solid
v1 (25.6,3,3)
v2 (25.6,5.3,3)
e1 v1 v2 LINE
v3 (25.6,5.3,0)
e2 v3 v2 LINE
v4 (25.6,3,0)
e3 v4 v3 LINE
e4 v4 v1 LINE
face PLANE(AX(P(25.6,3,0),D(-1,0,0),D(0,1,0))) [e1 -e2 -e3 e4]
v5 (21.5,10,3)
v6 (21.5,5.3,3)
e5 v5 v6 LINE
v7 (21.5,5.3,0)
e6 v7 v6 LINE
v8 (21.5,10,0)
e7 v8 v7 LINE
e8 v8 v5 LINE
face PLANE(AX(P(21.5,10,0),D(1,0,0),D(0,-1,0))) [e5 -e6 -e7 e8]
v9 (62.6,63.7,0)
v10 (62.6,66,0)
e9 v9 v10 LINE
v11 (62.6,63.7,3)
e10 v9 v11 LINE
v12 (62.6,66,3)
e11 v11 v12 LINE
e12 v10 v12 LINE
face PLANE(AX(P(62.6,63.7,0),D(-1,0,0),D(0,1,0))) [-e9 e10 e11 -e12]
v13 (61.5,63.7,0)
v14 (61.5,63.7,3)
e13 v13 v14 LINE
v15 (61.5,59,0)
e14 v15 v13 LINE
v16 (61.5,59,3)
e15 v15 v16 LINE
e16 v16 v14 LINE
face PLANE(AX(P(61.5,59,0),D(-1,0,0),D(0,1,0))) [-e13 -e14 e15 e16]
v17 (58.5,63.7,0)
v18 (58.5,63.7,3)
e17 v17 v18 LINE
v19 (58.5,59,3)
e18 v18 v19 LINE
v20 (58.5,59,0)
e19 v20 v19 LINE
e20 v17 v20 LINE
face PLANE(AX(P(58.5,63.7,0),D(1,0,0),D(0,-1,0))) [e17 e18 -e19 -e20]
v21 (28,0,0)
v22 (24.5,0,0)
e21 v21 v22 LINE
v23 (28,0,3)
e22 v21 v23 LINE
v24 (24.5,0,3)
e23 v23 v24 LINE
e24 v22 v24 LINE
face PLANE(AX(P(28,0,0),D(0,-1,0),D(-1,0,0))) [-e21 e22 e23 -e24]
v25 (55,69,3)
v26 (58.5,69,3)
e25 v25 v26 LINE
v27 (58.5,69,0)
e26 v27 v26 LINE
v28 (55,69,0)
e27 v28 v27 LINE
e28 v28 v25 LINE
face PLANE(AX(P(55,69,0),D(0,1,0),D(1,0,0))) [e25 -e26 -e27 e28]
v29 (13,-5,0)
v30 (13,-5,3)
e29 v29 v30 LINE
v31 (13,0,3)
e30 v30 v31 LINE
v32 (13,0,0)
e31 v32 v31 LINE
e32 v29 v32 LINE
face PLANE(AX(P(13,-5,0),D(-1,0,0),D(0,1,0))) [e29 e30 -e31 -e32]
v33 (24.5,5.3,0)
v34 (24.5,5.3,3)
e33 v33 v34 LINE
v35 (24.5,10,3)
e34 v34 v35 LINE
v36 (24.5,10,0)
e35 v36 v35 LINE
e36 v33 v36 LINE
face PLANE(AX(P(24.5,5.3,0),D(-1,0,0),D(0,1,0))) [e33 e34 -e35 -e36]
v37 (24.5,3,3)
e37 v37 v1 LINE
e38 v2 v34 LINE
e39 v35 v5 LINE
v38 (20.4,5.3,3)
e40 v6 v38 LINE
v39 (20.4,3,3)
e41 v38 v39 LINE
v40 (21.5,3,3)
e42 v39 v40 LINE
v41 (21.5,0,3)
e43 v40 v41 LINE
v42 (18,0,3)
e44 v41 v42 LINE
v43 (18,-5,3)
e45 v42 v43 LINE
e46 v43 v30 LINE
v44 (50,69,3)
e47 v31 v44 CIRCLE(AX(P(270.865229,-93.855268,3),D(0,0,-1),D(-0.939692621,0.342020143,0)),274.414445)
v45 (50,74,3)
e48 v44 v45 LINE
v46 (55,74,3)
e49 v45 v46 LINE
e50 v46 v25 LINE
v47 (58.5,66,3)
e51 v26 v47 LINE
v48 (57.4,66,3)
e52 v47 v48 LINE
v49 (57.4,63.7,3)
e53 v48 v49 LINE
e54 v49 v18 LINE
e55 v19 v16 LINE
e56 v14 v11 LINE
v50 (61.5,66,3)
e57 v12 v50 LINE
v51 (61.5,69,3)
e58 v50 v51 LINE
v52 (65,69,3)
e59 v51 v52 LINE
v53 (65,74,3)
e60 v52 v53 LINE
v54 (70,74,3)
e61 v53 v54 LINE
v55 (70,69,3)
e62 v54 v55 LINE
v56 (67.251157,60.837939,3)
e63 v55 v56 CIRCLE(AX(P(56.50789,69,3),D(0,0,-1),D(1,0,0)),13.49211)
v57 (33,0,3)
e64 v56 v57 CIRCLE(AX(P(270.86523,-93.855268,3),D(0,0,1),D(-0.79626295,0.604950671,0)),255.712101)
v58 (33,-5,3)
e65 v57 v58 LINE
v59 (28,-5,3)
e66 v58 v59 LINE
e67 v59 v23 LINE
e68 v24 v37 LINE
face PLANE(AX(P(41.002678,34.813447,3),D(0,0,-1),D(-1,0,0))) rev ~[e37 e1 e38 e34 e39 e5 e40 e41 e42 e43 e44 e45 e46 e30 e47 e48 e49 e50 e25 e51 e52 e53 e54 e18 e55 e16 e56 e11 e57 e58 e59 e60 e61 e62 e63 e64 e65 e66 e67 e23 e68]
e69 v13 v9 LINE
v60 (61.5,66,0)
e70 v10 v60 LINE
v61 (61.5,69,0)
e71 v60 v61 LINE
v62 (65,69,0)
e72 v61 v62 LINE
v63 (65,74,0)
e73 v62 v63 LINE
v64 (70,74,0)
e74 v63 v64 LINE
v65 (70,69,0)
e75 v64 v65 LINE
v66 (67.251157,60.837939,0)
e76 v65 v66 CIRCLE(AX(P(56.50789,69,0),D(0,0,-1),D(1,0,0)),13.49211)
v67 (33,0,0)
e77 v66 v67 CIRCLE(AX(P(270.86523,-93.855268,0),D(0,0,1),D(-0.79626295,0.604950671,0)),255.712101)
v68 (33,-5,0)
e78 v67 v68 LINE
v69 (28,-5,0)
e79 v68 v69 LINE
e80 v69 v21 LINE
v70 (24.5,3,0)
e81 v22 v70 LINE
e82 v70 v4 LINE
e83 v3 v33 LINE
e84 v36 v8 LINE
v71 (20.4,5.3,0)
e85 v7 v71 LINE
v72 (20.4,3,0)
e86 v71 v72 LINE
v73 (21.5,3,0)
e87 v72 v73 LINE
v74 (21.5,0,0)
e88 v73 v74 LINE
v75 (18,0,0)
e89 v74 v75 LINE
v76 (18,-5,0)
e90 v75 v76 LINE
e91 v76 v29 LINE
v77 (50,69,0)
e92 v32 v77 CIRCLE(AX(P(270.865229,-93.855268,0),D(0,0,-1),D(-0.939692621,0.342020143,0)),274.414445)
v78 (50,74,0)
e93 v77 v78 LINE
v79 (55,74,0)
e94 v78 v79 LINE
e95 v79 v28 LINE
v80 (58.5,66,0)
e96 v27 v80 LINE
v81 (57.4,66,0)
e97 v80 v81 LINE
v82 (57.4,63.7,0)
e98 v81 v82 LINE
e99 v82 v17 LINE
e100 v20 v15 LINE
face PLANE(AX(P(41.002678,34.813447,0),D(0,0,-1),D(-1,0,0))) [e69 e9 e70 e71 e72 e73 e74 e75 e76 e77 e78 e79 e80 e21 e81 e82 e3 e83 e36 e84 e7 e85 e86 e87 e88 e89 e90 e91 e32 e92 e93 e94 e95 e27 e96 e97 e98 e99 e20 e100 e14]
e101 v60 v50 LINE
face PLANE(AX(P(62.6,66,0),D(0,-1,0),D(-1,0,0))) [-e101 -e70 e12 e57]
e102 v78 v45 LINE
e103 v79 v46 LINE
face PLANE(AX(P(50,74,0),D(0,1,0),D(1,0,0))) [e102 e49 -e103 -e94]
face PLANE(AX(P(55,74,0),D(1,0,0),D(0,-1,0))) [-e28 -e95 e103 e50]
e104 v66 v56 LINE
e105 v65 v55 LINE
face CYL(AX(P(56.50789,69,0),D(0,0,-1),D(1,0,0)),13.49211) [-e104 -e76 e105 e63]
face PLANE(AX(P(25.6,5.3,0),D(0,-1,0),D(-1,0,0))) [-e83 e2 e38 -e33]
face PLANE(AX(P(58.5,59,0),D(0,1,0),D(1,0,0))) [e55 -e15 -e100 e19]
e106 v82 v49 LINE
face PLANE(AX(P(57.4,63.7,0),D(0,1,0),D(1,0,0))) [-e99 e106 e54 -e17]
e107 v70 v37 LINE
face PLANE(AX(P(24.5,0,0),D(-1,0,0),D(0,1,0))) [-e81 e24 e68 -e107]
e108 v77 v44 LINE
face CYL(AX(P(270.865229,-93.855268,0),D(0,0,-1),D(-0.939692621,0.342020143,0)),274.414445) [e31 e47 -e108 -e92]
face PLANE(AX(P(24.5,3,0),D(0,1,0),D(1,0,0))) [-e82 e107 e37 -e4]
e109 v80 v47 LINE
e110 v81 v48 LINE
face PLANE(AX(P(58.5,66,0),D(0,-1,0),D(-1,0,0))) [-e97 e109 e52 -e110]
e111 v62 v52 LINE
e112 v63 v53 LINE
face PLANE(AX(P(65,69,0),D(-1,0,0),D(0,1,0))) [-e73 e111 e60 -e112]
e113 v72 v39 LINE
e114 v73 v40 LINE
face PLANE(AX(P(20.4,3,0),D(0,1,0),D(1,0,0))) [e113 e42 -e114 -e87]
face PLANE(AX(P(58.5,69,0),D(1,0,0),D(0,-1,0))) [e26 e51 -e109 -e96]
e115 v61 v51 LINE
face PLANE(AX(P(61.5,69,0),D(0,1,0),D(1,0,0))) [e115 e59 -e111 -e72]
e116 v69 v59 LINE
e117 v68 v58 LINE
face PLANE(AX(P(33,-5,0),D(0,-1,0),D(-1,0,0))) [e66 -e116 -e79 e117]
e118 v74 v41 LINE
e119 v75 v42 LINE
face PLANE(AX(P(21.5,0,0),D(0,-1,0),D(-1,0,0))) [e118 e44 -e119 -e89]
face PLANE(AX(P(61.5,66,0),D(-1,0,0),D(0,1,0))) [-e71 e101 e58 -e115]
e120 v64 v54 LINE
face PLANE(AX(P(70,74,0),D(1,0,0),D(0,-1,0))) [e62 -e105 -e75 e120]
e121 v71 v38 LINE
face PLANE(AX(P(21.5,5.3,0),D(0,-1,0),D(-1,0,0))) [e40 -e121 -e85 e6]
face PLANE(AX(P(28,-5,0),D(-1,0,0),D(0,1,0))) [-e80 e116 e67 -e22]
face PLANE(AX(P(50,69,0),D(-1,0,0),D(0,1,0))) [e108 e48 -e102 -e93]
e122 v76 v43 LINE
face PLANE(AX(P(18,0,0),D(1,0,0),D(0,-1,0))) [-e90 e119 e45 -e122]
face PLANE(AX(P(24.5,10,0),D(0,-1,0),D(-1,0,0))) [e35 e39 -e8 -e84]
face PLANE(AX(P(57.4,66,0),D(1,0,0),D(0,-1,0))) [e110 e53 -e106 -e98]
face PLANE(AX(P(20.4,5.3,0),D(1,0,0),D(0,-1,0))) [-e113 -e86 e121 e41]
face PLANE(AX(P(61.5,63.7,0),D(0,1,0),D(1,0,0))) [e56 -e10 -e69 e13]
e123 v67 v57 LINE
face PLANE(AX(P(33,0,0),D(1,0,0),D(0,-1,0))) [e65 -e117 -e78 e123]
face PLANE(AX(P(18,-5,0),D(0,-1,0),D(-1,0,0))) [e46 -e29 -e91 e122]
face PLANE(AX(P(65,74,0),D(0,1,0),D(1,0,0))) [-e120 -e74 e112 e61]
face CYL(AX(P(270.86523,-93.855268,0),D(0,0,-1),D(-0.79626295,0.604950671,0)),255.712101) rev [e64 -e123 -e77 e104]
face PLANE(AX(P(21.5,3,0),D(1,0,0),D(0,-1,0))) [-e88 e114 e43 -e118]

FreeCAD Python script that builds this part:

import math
import FreeCAD as App
import Part
import Sketcher
from FreeCAD import Vector

doc = App.newDocument("Part")
params = doc.addObject("Spreadsheet::Sheet", "Params")
for row, (alias, value) in enumerate([
    ("sketch1_width", "3 mm"),
    ("sketch1_width2", "5 mm"),
    ("sketch1_width3", "3.5 mm"),
    ("sketch1_width4", "1.1 mm"),
    ("sketch1_height", "2.3 mm"),
    ("pad1_length", "3 mm"),
], start=1):
    params.set(f"A{row}", alias)
    params.set(f"B{row}", "=" + value)
    params.setAlias(f"B{row}", alias)

body = doc.addObject("PartDesign::Body", "Body")

# Sketch on XY plane
sketch1 = doc.addObject("Sketcher::SketchObject", "Sketch")
body.addObject(sketch1)
sketch1.AttachmentSupport = (doc.XY_Plane, [""])
sketch1.MapMode = "FlatFace"
sketch1.addGeometry([
    Part.LineSegment(Vector(65, 69, 0), Vector(61.5, 69, 0)),  # 0
    Part.LineSegment(Vector(61.5, 69, 0), Vector(61.5, 66, 0)),  # 1
    Part.LineSegment(Vector(61.5, 66, 0), Vector(62.6, 66, 0)),  # 2
    Part.LineSegment(Vector(62.6, 66, 0), Vector(62.6, 63.7, 0)),  # 3
    Part.LineSegment(Vector(62.6, 63.7, 0), Vector(61.5, 63.7, 0)),  # 4
    Part.LineSegment(Vector(61.5, 63.7, 0), Vector(61.5, 59, 0)),  # 5
    Part.LineSegment(Vector(61.5, 59, 0), Vector(58.5, 59, 0)),  # 6
    Part.LineSegment(Vector(58.5, 59, 0), Vector(58.5, 63.7, 0)),  # 7
    Part.LineSegment(Vector(58.5, 63.7, 0), Vector(57.4, 63.7, 0)),  # 8
    Part.LineSegment(Vector(57.4, 63.7, 0), Vector(57.4, 66, 0)),  # 9
    Part.LineSegment(Vector(57.4, 66, 0), Vector(58.5, 66, 0)),  # 10
    Part.LineSegment(Vector(58.5, 66, 0), Vector(58.5, 69, 0)),  # 11
    Part.LineSegment(Vector(58.5, 69, 0), Vector(55, 69, 0)),  # 12
    Part.LineSegment(Vector(55, 69, 0), Vector(55, 74, 0)),  # 13
    Part.LineSegment(Vector(55, 74, 0), Vector(50, 74, 0)),  # 14
    Part.LineSegment(Vector(50, 74, 0), Vector(50, 69, 0)),  # 15
    Part.ArcOfCircle(Part.Circle(Vector(270.9, -93.9, 0), Vector(0, 0, 1), 274.4), math.radians(143.6), math.radians(160)),  # 16
    Part.LineSegment(Vector(13, 0, 0), Vector(13, -5, 0)),  # 17
    Part.LineSegment(Vector(13, -5, 0), Vector(18, -5, 0)),  # 18
    Part.LineSegment(Vector(18, -5, 0), Vector(18, 0, 0)),  # 19
    Part.LineSegment(Vector(18, 0, 0), Vector(21.5, 0, 0)),  # 20
    Part.LineSegment(Vector(21.5, 0, 0), Vector(21.5, 3, 0)),  # 21
    Part.LineSegment(Vector(21.5, 3, 0), Vector(20.4, 3, 0)),  # 22
    Part.LineSegment(Vector(20.4, 3, 0), Vector(20.4, 5.3, 0)),  # 23
    Part.LineSegment(Vector(20.4, 5.3, 0), Vector(21.5, 5.3, 0)),  # 24
    Part.LineSegment(Vector(21.5, 5.3, 0), Vector(21.5, 10, 0)),  # 25
    Part.LineSegment(Vector(21.5, 10, 0), Vector(24.5, 10, 0)),  # 26
    Part.LineSegment(Vector(24.5, 10, 0), Vector(24.5, 5.3, 0)),  # 27
    Part.LineSegment(Vector(24.5, 5.3, 0), Vector(25.6, 5.3, 0)),  # 28
    Part.LineSegment(Vector(25.6, 5.3, 0), Vector(25.6, 3, 0)),  # 29
    Part.LineSegment(Vector(25.6, 3, 0), Vector(24.5, 3, 0)),  # 30
    Part.LineSegment(Vector(24.5, 3, 0), Vector(24.5, 0, 0)),  # 31
    Part.LineSegment(Vector(24.5, 0, 0), Vector(28, 0, 0)),  # 32
    Part.LineSegment(Vector(28, 0, 0), Vector(28, -5, 0)),  # 33
    Part.LineSegment(Vector(28, -5, 0), Vector(33, -5, 0)),  # 34
    Part.LineSegment(Vector(33, -5, 0), Vector(33, 0, 0)),  # 35
    Part.ArcOfCircle(Part.Circle(Vector(270.9, -93.9, 0), Vector(0, 0, 1), 255.7), math.radians(142.77), math.radians(158.47)),  # 36
    Part.ArcOfCircle(Part.Circle(Vector(56.5, 69, 0), Vector(0, 0, 1), 13.5), math.radians(-37), math.radians(0)),  # 37
    Part.LineSegment(Vector(70, 69, 0), Vector(70, 74, 0)),  # 38
    Part.LineSegment(Vector(70, 74, 0), Vector(65, 74, 0)),  # 39
    Part.LineSegment(Vector(65, 74, 0), Vector(65, 69, 0)),  # 40
], False)
sketch1.addConstraint([
    Sketcher.Constraint("Coincident", 0, 2, 1, 1),
    Sketcher.Constraint("Coincident", 1, 2, 2, 1),
    Sketcher.Constraint("Coincident", 2, 2, 3, 1),
    Sketcher.Constraint("Coincident", 3, 2, 4, 1),
    Sketcher.Constraint("Coincident", 4, 2, 5, 1),
    Sketcher.Constraint("Coincident", 5, 2, 6, 1),
    Sketcher.Constraint("Coincident", 6, 2, 7, 1),
    Sketcher.Constraint("Coincident", 7, 2, 8, 1),
    Sketcher.Constraint("Coincident", 8, 2, 9, 1),
    Sketcher.Constraint("Coincident", 9, 2, 10, 1),
    Sketcher.Constraint("Coincident", 10, 2, 11, 1),
    Sketcher.Constraint("Coincident", 11, 2, 12, 1),
    Sketcher.Constraint("Coincident", 12, 2, 13, 1),
    Sketcher.Constraint("Coincident", 13, 2, 14, 1),
    Sketcher.Constraint("Coincident", 14, 2, 15, 1),
    Sketcher.Constraint("Coincident", 15, 2, 16, 1),
    Sketcher.Constraint("Coincident", 16, 2, 17, 1),
    Sketcher.Constraint("Coincident", 17, 2, 18, 1),
    Sketcher.Constraint("Coincident", 18, 2, 19, 1),
    Sketcher.Constraint("Coincident", 19, 2, 20, 1),
    Sketcher.Constraint("Coincident", 20, 2, 21, 1),
    Sketcher.Constraint("Coincident", 21, 2, 22, 1),
    Sketcher.Constraint("Coincident", 22, 2, 23, 1),
    Sketcher.Constraint("Coincident", 23, 2, 24, 1),
    Sketcher.Constraint("Coincident", 24, 2, 25, 1),
    Sketcher.Constraint("Coincident", 25, 2, 26, 1),
    Sketcher.Constraint("Coincident", 26, 2, 27, 1),
    Sketcher.Constraint("Coincident", 27, 2, 28, 1),
    Sketcher.Constraint("Coincident", 28, 2, 29, 1),
    Sketcher.Constraint("Coincident", 29, 2, 30, 1),
    Sketcher.Constraint("Coincident", 30, 2, 31, 1),
    Sketcher.Constraint("Coincident", 31, 2, 32, 1),
    Sketcher.Constraint("Coincident", 32, 2, 33, 1),
    Sketcher.Constraint("Coincident", 33, 2, 34, 1),
    Sketcher.Constraint("Coincident", 34, 2, 35, 1),
    Sketcher.Constraint("Coincident", 35, 2, 36, 2),
    Sketcher.Constraint("Tangent", 36, 1, 37, 1),
    Sketcher.Constraint("Tangent", 37, 2, 38, 1),
    Sketcher.Constraint("Coincident", 38, 2, 39, 1),
    Sketcher.Constraint("Coincident", 39, 2, 40, 1),
    Sketcher.Constraint("Coincident", 40, 2, 0, 1),
    Sketcher.Constraint("Horizontal", 0),
    Sketcher.Constraint("Vertical", 1),
    Sketcher.Constraint("Horizontal", 2),
    Sketcher.Constraint("Vertical", 3),
    Sketcher.Constraint("Horizontal", 4),
    Sketcher.Constraint("Vertical", 5),
    Sketcher.Constraint("Horizontal", 6),
    Sketcher.Constraint("Vertical", 7),
    Sketcher.Constraint("Horizontal", 8),
    Sketcher.Constraint("Vertical", 9),
    Sketcher.Constraint("Horizontal", 10),
    Sketcher.Constraint("Vertical", 11),
    Sketcher.Constraint("Horizontal", 12),
    Sketcher.Constraint("Vertical", 13),
    Sketcher.Constraint("Horizontal", 14),
    Sketcher.Constraint("Vertical", 15),
    Sketcher.Constraint("Vertical", 17),
    Sketcher.Constraint("Horizontal", 18),
    Sketcher.Constraint("Vertical", 19),
    Sketcher.Constraint("Horizontal", 20),
    Sketcher.Constraint("Vertical", 21),
    Sketcher.Constraint("Horizontal", 22),
    Sketcher.Constraint("Vertical", 23),
    Sketcher.Constraint("Horizontal", 24),
    Sketcher.Constraint("Vertical", 25),
    Sketcher.Constraint("Horizontal", 26),
    Sketcher.Constraint("Vertical", 27),
    Sketcher.Constraint("Horizontal", 28),
    Sketcher.Constraint("Vertical", 29),
    Sketcher.Constraint("Horizontal", 30),
    Sketcher.Constraint("Vertical", 31),
    Sketcher.Constraint("Horizontal", 32),
    Sketcher.Constraint("Vertical", 33),
    Sketcher.Constraint("Horizontal", 34),
    Sketcher.Constraint("Vertical", 35),
    Sketcher.Constraint("Vertical", 38),
    Sketcher.Constraint("Horizontal", 39),
    Sketcher.Constraint("Vertical", 40),
    Sketcher.Constraint("Coincident", 36, 3, 16, 3),
    Sketcher.Constraint("PointOnObject", 16, 2, -1),
    Sketcher.Constraint("PointOnObject", 19, 2, -1),
    Sketcher.Constraint("PointOnObject", 31, 2, -1),
    Sketcher.Constraint("PointOnObject", 35, 2, -1),
    Sketcher.Constraint("Horizontal", 37, 3, 0, 2),
    Sketcher.Constraint("Horizontal", 4, 2, 7, 2),
    Sketcher.Constraint("Horizontal", 2, 2, 9, 2),
    Sketcher.Constraint("Horizontal", 0, 2, 11, 2),
    Sketcher.Constraint("Horizontal", 12, 2, 15, 2),
    Sketcher.Constraint("Horizontal", 24, 2, 27, 2),
    Sketcher.Constraint("Horizontal", 22, 2, 29, 2),
    Sketcher.Constraint("Horizontal", 18, 2, 33, 2),
    Sketcher.Constraint("Horizontal", 14, 2, 38, 2),
    Sketcher.Constraint("Vertical", 1, 2, 4, 2),
    Sketcher.Constraint("Vertical", 7, 2, 10, 2),
    Sketcher.Constraint("Vertical", 21, 2, 24, 2),
    Sketcher.Constraint("Vertical", 27, 2, 30, 2),
    Sketcher.Constraint("Equal", 4, 8),
    Sketcher.Constraint("Equal", 0, 12),
    Sketcher.Constraint("Equal", 14, 18),
    Sketcher.Constraint("Equal", 12, 20),
    Sketcher.Constraint("Equal", 10, 22),
    Sketcher.Constraint("Equal", 6, 26),
    Sketcher.Constraint("Equal", 24, 28),
    Sketcher.Constraint("Equal", 20, 32),
    Sketcher.Constraint("Equal", 18, 34),
    Sketcher.Constraint("Equal", 34, 39),
    Sketcher.Constraint("Equal", 26, 1),
    Sketcher.Constraint("Equal", 39, 13),
    Sketcher.Constraint("Equal", 15, 17),
    Sketcher.Constraint("Equal", 11, 21),
    Sketcher.Constraint("Equal", 9, 23),
    Sketcher.Constraint("Equal", 7, 25),
    Sketcher.Constraint("DistanceX", 6, 2, 6, 1, 3.0),
    Sketcher.Constraint("DistanceX", 14, 2, 14, 1, 5.0),
    Sketcher.Constraint("DistanceX", 0, 2, 0, 1, 3.5),
    Sketcher.Constraint("DistanceX", 2, 1, 2, 2, 1.1),
    Sketcher.Constraint("DistanceY", 3, 2, 3, 1, 2.3),
    Sketcher.Constraint("DistanceY", 5, 2, 5, 1, 4.7),
    Sketcher.Constraint("DistanceY", -1, 1, 37, 3, 69.0),
    Sketcher.Constraint("DistanceX", -1, 1, 12, 2, 55.0),
    Sketcher.Constraint("DistanceX", -1, 1, 17, 2, 13.0),
    Sketcher.Constraint("Radius", 36, 255.712101),
])
sketch1.setExpression("Constraints[113]", "Params.sketch1_width")
sketch1.setExpression("Constraints[114]", "Params.sketch1_width2")
sketch1.setExpression("Constraints[115]", "Params.sketch1_width3")
sketch1.setExpression("Constraints[116]", "Params.sketch1_width4")
sketch1.setExpression("Constraints[117]", "Params.sketch1_height")
pad1 = doc.addObject("PartDesign::Pad", "Pad")
body.addObject(pad1)
pad1.Profile = sketch1
pad1.setExpression("Length", "Params.pad1_length")

doc.recompute()
